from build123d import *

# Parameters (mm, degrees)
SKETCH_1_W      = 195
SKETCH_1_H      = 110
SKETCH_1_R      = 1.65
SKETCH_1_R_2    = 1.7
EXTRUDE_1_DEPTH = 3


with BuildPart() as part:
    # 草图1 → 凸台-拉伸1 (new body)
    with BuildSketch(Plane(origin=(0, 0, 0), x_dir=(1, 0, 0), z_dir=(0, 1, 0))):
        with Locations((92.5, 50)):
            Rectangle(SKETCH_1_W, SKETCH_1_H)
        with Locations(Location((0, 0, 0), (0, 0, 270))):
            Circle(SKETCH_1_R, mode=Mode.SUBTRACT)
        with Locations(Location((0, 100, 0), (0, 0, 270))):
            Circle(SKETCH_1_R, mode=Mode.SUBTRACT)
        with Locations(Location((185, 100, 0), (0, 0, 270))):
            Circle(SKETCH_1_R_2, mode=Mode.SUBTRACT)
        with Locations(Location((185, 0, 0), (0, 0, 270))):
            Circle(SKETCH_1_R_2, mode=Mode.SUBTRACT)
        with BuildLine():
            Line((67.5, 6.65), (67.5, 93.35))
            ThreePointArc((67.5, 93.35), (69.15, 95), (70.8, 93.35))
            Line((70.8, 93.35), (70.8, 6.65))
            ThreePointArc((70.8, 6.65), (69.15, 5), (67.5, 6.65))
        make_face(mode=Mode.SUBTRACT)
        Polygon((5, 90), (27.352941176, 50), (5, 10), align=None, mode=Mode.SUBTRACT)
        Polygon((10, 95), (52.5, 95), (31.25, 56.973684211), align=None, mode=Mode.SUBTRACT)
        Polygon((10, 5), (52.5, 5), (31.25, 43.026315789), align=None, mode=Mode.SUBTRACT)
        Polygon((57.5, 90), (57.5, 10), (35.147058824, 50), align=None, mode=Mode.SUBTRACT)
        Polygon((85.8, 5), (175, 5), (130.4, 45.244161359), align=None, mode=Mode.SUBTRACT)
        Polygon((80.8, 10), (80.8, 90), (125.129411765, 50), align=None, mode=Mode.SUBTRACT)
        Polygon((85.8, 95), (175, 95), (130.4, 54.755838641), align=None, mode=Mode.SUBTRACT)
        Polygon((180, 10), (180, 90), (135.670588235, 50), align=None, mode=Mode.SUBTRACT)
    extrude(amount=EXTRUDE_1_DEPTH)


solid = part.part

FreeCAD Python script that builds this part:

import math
import FreeCAD as App
import Part
import Sketcher


def add_polygon(sketch, points):
    """Adds a closed chain of lines whose ends are joined by coincident constraints."""
    first, n = sketch.GeometryCount, len(points)
    for a, b in zip(points, points[1:] + points[:1]):
        sketch.addGeometry(Part.LineSegment(App.Vector(*a, 0), App.Vector(*b, 0)), False)
    for i in range(n):
        sketch.addConstraint(Sketcher.Constraint("Coincident", first + i, 2, first + (i + 1) % n, 1))

doc = App.newDocument("Part")
params = doc.addObject("Spreadsheet::Sheet", "Params")
for row, (alias, value) in enumerate([
    ("sketch1_diameter", "3.3 mm"),
    ("sketch1_diameter2", "3.4 mm"),
    ("sketch1_width", "195 mm"),
    ("sketch1_height", "110 mm"),
    ("sketch1_height2", "80 mm"),
    ("pad1_length", "3 mm"),
], start=1):
    params.set(f"A{row}", alias)
    params.set(f"B{row}", "=" + value)
    params.setAlias(f"B{row}", alias)

body = doc.addObject("PartDesign::Body", "Body")

sketch1 = body.newObject("Sketcher::SketchObject", "Sketch")
sketch1.AttachmentSupport = (doc.getObject("XZ_Plane"), [""])
sketch1.MapMode = "FlatFace"
add_polygon(sketch1, [(-5, -105), (-5, 5), (190, 5), (190, -105)])
sketch1.addGeometry(Part.Circle(App.Vector(0, 0, 0), App.Vector(0, 0, 1), 1.6), False)
add_polygon(sketch1, [(52.5, -5), (10, -5), (31.2, -43)])
sketch1.addGeometry(Part.Circle(App.Vector(185, 0, 0), App.Vector(0, 0, 1), 1.7), False)
add_polygon(sketch1, [(175, -5), (85.8, -5), (130.4, -45.2)])
add_polygon(sketch1, [(5, -10), (5, -90), (27.4, -50)])
add_polygon(sketch1, [(35.1, -50), (57.5, -90), (57.5, -10)])
sketch1.addGeometry(Part.ArcOfCircle(Part.Circle(App.Vector(69.2, -6.7, 0), App.Vector(0, 0, 1), 1.6), math.radians(0), math.radians(180)), False)
sketch1.addGeometry(Part.LineSegment(App.Vector(67.5, -6.7, 0), App.Vector(67.5, -93.3, 0)), False)
sketch1.addGeometry(Part.ArcOfCircle(Part.Circle(App.Vector(69.2, -93.3, 0), App.Vector(0, 0, 1), 1.6), math.radians(180), math.radians(360)), False)
sketch1.addGeometry(Part.LineSegment(App.Vector(70.8, -93.3, 0), App.Vector(70.8, -6.7, 0)), False)
add_polygon(sketch1, [(31.2, -57), (10, -95), (52.5, -95)])
sketch1.addGeometry(Part.Circle(App.Vector(0, -100, 0), App.Vector(0, 0, 1), 1.6), False)
add_polygon(sketch1, [(125.1, -50), (80.8, -10), (80.8, -90)])
add_polygon(sketch1, [(130.4, -54.8), (85.8, -95), (175, -95)])
add_polygon(sketch1, [(180, -90), (180, -10), (135.7, -50)])
sketch1.addGeometry(Part.Circle(App.Vector(185, -100, 0), App.Vector(0, 0, 1), 1.7), False)
sketch1.addConstraint(Sketcher.Constraint("Tangent", 18, 2, 19, 1))
sketch1.addConstraint(Sketcher.Constraint("Tangent", 19, 2, 20, 1))
sketch1.addConstraint(Sketcher.Constraint("Tangent", 20, 2, 21, 1))
sketch1.addConstraint(Sketcher.Constraint("Tangent", 21, 2, 18, 1))
sketch1.addConstraint(Sketcher.Constraint("Vertical", 0))
sketch1.addConstraint(Sketcher.Constraint("Horizontal", 1))
sketch1.addConstraint(Sketcher.Constraint("Vertical", 2))
sketch1.addConstraint(Sketcher.Constraint("Horizontal", 3))
sketch1.addConstraint(Sketcher.Constraint("Horizontal", 5))
sketch1.addConstraint(Sketcher.Constraint("Horizontal", 9))
sketch1.addConstraint(Sketcher.Constraint("Vertical", 12))
sketch1.addConstraint(Sketcher.Constraint("Vertical", 16))
sketch1.addConstraint(Sketcher.Constraint("Vertical", 19))
sketch1.addConstraint(Sketcher.Constraint("Vertical", 21))
sketch1.addConstraint(Sketcher.Constraint("Horizontal", 23))
sketch1.addConstraint(Sketcher.Constraint("Vertical", 27))
sketch1.addConstraint(Sketcher.Constraint("Horizontal", 30))
sketch1.addConstraint(Sketcher.Constraint("Vertical", 32))
sketch1.addConstraint(Sketcher.Constraint("Coincident", 4, 3, -1, 1))
sketch1.addConstraint(Sketcher.Constraint("Equal", 4, 18))
sketch1.addConstraint(Sketcher.Constraint("Equal", 20, 25))
sketch1.addConstraint(Sketcher.Constraint("Equal", 8, 35))
sketch1.addConstraint(Sketcher.Constraint("PointOnObject", 8, 3, -1))
sketch1.addConstraint(Sketcher.Constraint("PointOnObject", 25, 3, -2))
sketch1.addConstraint(Sketcher.Constraint("Parallel", 7, 13))
sketch1.addConstraint(Sketcher.Constraint("Parallel", 6, 14))
sketch1.addConstraint(Sketcher.Constraint("Parallel", 14, 15))
sketch1.addConstraint(Sketcher.Constraint("Parallel", 13, 17))
sketch1.addConstraint(Sketcher.Constraint("Parallel", 17, 22))
sketch1.addConstraint(Sketcher.Constraint("Parallel", 15, 24))
sketch1.addConstraint(Sketcher.Constraint("Parallel", 10, 26))
sketch1.addConstraint(Sketcher.Constraint("Parallel", 11, 28))
sketch1.addConstraint(Sketcher.Constraint("Parallel", 28, 29))
sketch1.addConstraint(Sketcher.Constraint("Parallel", 26, 31))
sketch1.addConstraint(Sketcher.Constraint("Parallel", 29, 33))
sketch1.addConstraint(Sketcher.Constraint("Parallel", 31, 34))
sketch1.addConstraint(Sketcher.Constraint("Horizontal", 25, 3, 35, 3))
sketch1.addConstraint(Sketcher.Constraint("Horizontal", 7, 2, 9, 2))
sketch1.addConstraint(Sketcher.Constraint("Horizontal", 12, 2, 15, 2))
sketch1.addConstraint(Sketcher.Constraint("Horizontal", 14, 2, 16, 2))
sketch1.addConstraint(Sketcher.Constraint("Horizontal", 13, 2, 17, 2))
sketch1.addConstraint(Sketcher.Constraint("Horizontal", 16, 2, 26, 2))
sketch1.addConstraint(Sketcher.Constraint("Horizontal", 15, 2, 27, 2))
sketch1.addConstraint(Sketcher.Constraint("Horizontal", 17, 2, 28, 2))
sketch1.addConstraint(Sketcher.Constraint("Horizontal", 23, 2, 29, 2))
sketch1.addConstraint(Sketcher.Constraint("Horizontal", 26, 2, 32, 2))
sketch1.addConstraint(Sketcher.Constraint("Horizontal", 28, 2, 33, 2))
sketch1.addConstraint(Sketcher.Constraint("Vertical", 8, 3, 35, 3))
sketch1.addConstraint(Sketcher.Constraint("Vertical", 5, 2, 22, 2))
sketch1.addConstraint(Sketcher.Constraint("Vertical", 7, 2, 23, 2))
sketch1.addConstraint(Sketcher.Constraint("Vertical", 9, 2, 29, 2))
sketch1.addConstraint(Sketcher.Constraint("Vertical", 11, 2, 30, 2))
sketch1.addConstraint(Sketcher.Constraint("Diameter", 4, 3.3))
sketch1.addConstraint(Sketcher.Constraint("Diameter", 8, 3.4))
sketch1.addConstraint(Sketcher.Constraint("DistanceX", 1, 1, 1, 2, 195.0))
sketch1.addConstraint(Sketcher.Constraint("DistanceY", 0, 1, 0, 2, 110.0))
sketch1.addConstraint(Sketcher.Constraint("DistanceY", 12, 2, 12, 1, 80.0))
sketch1.addConstraint(Sketcher.Constraint("DistanceX", 5, 2, 5, 1, 42.5))
sketch1.addConstraint(Sketcher.Constraint("DistanceX", 9, 2, 9, 1, 89.2))
sketch1.addConstraint(Sketcher.Constraint("DistanceY", 19, 2, 19, 1, 86.7))
sketch1.addConstraint(Sketcher.Constraint("DistanceX", -1, 1, 8, 3, 185.0))
sketch1.addConstraint(Sketcher.Constraint("DistanceY", 25, 3, -1, 1, 100.0))
sketch1.addConstraint(Sketcher.Constraint("DistanceX", 0, 2, -1, 1, 5.0))
sketch1.addConstraint(Sketcher.Constraint("DistanceY", -1, 1, 0, 2, 5.0))
sketch1.addConstraint(Sketcher.Constraint("DistanceX", -1, 1, 5, 2, 10.0))
sketch1.addConstraint(Sketcher.Constraint("DistanceY", 5, 2, -1, 1, 5.0))
sketch1.addConstraint(Sketcher.Constraint("DistanceX", -1, 1, 11, 2, 175.0))
sketch1.addConstraint(Sketcher.Constraint("DistanceX", -1, 1, 12, 2, 5.0))
sketch1.addConstraint(Sketcher.Constraint("DistanceY", 12, 2, -1, 1, 90.0))
sketch1.addConstraint(Sketcher.Constraint("DistanceY", 22, 2, -1, 1, 95.0))
sketch1.addConstraint(Sketcher.Constraint("DistanceX", -1, 1, 32, 2, 180.0))
sketch1.addConstraint(Sketcher.Constraint("DistanceX", 7, 2, 16, 2, 5.0))
sketch1.addConstraint(Sketcher.Constraint("DistanceX", 16, 2, 18, 2, 10.0))
sketch1.addConstraint(Sketcher.Constraint("DistanceX", 26, 2, 9, 2, 5.0))
sketch1.addConstraint(Sketcher.Constraint("DistanceY", 18, 3, -1, 1, 6.65))
sketch1.addConstraint(Sketcher.Constraint("Distance", 6, 43.561028))
sketch1.addConstraint(Sketcher.Constraint("Distance", 26, 59.708431))
sketch1.setExpression("Constraints[80]", "Params.sketch1_diameter")
sketch1.setExpression("Constraints[81]", "Params.sketch1_diameter2")
sketch1.setExpression("Constraints[82]", "Params.sketch1_width")
sketch1.setExpression("Constraints[83]", "Params.sketch1_height")
sketch1.setExpression("Constraints[84]", "Params.sketch1_height2")
pad1 = body.newObject("PartDesign::Pad", "Pad")
pad1.Profile = sketch1
pad1.setExpression("Length", "Params.pad1_length")
pad1.Reversed = True

doc.recompute()
